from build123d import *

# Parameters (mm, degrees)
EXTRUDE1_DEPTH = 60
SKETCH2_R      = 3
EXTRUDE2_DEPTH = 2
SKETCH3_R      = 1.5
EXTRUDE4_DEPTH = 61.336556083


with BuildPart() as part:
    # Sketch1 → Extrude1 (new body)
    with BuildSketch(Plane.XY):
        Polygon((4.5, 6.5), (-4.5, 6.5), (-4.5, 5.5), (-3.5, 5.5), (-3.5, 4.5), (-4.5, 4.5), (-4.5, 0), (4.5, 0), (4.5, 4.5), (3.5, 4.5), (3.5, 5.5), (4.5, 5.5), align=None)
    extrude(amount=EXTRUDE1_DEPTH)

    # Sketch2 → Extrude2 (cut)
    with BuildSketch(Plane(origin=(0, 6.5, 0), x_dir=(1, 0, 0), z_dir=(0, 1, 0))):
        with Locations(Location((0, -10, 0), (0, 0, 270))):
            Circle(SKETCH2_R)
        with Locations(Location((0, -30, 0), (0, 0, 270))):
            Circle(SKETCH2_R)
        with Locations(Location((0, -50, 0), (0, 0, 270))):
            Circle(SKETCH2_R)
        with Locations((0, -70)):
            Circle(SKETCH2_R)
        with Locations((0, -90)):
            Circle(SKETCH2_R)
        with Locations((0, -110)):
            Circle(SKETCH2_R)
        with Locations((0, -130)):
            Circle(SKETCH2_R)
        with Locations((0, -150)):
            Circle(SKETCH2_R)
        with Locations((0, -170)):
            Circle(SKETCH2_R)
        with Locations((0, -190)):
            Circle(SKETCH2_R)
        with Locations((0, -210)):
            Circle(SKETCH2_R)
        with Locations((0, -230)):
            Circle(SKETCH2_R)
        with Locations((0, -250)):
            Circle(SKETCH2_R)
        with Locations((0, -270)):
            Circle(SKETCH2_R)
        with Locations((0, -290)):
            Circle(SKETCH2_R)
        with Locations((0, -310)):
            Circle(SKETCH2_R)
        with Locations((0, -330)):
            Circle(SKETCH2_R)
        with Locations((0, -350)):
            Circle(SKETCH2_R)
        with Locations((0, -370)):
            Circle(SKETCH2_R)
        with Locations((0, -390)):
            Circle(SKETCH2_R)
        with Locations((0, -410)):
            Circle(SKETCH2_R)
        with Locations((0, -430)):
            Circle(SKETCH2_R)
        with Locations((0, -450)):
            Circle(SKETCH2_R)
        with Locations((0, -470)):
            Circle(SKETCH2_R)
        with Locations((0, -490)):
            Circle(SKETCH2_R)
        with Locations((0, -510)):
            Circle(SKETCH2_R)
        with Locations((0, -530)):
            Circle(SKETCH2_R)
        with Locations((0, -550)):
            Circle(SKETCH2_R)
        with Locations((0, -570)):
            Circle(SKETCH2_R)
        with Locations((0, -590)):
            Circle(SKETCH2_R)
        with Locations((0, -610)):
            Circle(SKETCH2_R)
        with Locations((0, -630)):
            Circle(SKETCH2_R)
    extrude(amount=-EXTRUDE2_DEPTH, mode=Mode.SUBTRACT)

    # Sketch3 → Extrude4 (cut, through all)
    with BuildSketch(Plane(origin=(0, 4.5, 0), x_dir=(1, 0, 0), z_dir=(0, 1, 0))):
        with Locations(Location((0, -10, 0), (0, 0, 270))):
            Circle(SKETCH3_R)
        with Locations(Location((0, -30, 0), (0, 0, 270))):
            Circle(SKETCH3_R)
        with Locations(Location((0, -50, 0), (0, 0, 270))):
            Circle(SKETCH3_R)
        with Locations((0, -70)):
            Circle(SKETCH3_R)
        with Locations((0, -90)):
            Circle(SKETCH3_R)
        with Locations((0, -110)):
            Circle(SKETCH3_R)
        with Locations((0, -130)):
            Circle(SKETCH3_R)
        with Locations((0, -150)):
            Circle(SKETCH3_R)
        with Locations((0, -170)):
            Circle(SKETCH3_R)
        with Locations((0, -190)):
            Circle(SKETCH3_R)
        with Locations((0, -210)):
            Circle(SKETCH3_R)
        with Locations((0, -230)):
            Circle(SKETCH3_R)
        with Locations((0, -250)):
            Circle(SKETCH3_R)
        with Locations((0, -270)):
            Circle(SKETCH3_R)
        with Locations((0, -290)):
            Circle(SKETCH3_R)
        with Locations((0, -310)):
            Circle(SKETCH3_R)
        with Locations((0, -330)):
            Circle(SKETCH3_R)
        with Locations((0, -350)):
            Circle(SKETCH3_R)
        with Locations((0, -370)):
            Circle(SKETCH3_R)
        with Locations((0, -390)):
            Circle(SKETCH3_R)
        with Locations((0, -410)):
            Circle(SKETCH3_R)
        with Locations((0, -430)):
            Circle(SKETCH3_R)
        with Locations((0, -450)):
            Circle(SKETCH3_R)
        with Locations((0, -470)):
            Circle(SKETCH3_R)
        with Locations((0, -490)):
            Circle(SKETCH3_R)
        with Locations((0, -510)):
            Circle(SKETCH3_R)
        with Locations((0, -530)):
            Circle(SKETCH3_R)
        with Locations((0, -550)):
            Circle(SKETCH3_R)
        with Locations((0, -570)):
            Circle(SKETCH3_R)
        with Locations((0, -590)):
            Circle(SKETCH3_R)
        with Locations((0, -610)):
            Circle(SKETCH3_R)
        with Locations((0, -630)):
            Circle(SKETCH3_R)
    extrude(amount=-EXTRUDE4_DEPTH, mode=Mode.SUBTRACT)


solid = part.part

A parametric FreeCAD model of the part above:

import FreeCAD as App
import Part
import Sketcher
from FreeCAD import Vector


def add_polygon(sketch, points):
    """Adds a closed chain of lines whose ends are joined by coincident constraints."""
    first, n = sketch.GeometryCount, len(points)
    for a, b in zip(points, points[1:] + points[:1]):
        sketch.addGeometry(Part.LineSegment(App.Vector(*a, 0), App.Vector(*b, 0)), False)
    for i in range(n):
        sketch.addConstraint(Sketcher.Constraint("Coincident", first + i, 2, first + (i + 1) % n, 1))

doc = App.newDocument("Part")
body = doc.addObject("PartDesign::Body", "Body")

# Sketch on XY plane
sketch1 = body.newObject("Sketcher::SketchObject", "Sketch")
sketch1.AttachmentSupport = (doc.getObject("XY_Plane"), [""])
sketch1.MapMode = "FlatFace"
add_polygon(sketch1, [(4.5, 6.5), (-4.5, 6.5), (-4.5, 5.5), (-3.5, 5.5), (-3.5, 4.5), (-4.5, 4.5), (-4.5, 0), (4.5, 0), (4.5, 4.5), (3.5, 4.5), (3.5, 5.5), (4.5, 5.5)])  # lines 0-11
sketch1.addConstraint(Sketcher.Constraint("Horizontal", 0))
sketch1.addConstraint(Sketcher.Constraint("Vertical", 1))
sketch1.addConstraint(Sketcher.Constraint("Horizontal", 2))
sketch1.addConstraint(Sketcher.Constraint("Vertical", 3))
sketch1.addConstraint(Sketcher.Constraint("Horizontal", 4))
sketch1.addConstraint(Sketcher.Constraint("Vertical", 5))
sketch1.addConstraint(Sketcher.Constraint("Horizontal", 6))
sketch1.addConstraint(Sketcher.Constraint("Vertical", 7))
sketch1.addConstraint(Sketcher.Constraint("Horizontal", 8))
sketch1.addConstraint(Sketcher.Constraint("Vertical", 9))
sketch1.addConstraint(Sketcher.Constraint("Horizontal", 10))
sketch1.addConstraint(Sketcher.Constraint("Vertical", 11))
sketch1.addConstraint(Sketcher.Constraint("Symmetric", 5, 2, 6, 2, -1, 1))
sketch1.addConstraint(Sketcher.Constraint("Symmetric", 3, 2, 8, 2, -2))
sketch1.addConstraint(Sketcher.Constraint("Symmetric", 1, 2, 10, 2, -2))
sketch1.addConstraint(Sketcher.Constraint("Vertical", 1, 2, 4, 2))
sketch1.addConstraint(Sketcher.Constraint("Equal", 10, 1))
sketch1.addConstraint(Sketcher.Constraint("Equal", 1, 3))
sketch1.addConstraint(Sketcher.Constraint("DistanceX", 0, 2, 0, 1, 9.0))
sketch1.addConstraint(Sketcher.Constraint("DistanceX", 2, 1, 2, 2, 1.0))
sketch1.addConstraint(Sketcher.Constraint("DistanceY", 5, 2, 5, 1, 4.5))
pad1 = body.newObject("PartDesign::Pad", "Pad")
pad1.Profile = sketch1
pad1.Length = 60

# Sketch on XZ plane
sketch2 = body.newObject("Sketcher::SketchObject", "Sketch001")
sketch2.AttachmentSupport = (doc.getObject("XZ_Plane"), [""])
sketch2.MapMode = "FlatFace"
sketch2.AttachmentOffset = App.Placement(Vector(0, 0, -6.5), App.Rotation())
sketch2.addGeometry(Part.Circle(Vector(0, 10, 0), Vector(0, 0, 1), 3), False)
sketch2.addGeometry(Part.Circle(Vector(0, 30, 0), Vector(0, 0, 1), 3), False)
sketch2.addGeometry(Part.Circle(Vector(0, 50, 0), Vector(0, 0, 1), 3), False)
sketch2.addGeometry(Part.Circle(Vector(0, 70, 0), Vector(0, 0, 1), 3), False)
sketch2.addGeometry(Part.Circle(Vector(0, 90, 0), Vector(0, 0, 1), 3), False)
sketch2.addGeometry(Part.Circle(Vector(0, 110, 0), Vector(0, 0, 1), 3), False)
sketch2.addGeometry(Part.Circle(Vector(0, 130, 0), Vector(0, 0, 1), 3), False)
sketch2.addGeometry(Part.Circle(Vector(0, 150, 0), Vector(0, 0, 1), 3), False)
sketch2.addGeometry(Part.Circle(Vector(0, 170, 0), Vector(0, 0, 1), 3), False)
sketch2.addGeometry(Part.Circle(Vector(0, 190, 0), Vector(0, 0, 1), 3), False)
sketch2.addGeometry(Part.Circle(Vector(0, 210, 0), Vector(0, 0, 1), 3), False)
sketch2.addGeometry(Part.Circle(Vector(0, 230, 0), Vector(0, 0, 1), 3), False)
sketch2.addGeometry(Part.Circle(Vector(0, 250, 0), Vector(0, 0, 1), 3), False)
sketch2.addGeometry(Part.Circle(Vector(0, 270, 0), Vector(0, 0, 1), 3), False)
sketch2.addGeometry(Part.Circle(Vector(0, 290, 0), Vector(0, 0, 1), 3), False)
sketch2.addGeometry(Part.Circle(Vector(0, 310, 0), Vector(0, 0, 1), 3), False)
sketch2.addGeometry(Part.Circle(Vector(0, 330, 0), Vector(0, 0, 1), 3), False)
sketch2.addGeometry(Part.Circle(Vector(0, 350, 0), Vector(0, 0, 1), 3), False)
sketch2.addGeometry(Part.Circle(Vector(0, 370, 0), Vector(0, 0, 1), 3), False)
sketch2.addGeometry(Part.Circle(Vector(0, 390, 0), Vector(0, 0, 1), 3), False)
sketch2.addGeometry(Part.Circle(Vector(0, 410, 0), Vector(0, 0, 1), 3), False)
sketch2.addGeometry(Part.Circle(Vector(0, 430, 0), Vector(0, 0, 1), 3), False)
sketch2.addGeometry(Part.Circle(Vector(0, 450, 0), Vector(0, 0, 1), 3), False)
sketch2.addGeometry(Part.Circle(Vector(0, 470, 0), Vector(0, 0, 1), 3), False)
sketch2.addGeometry(Part.Circle(Vector(0, 490, 0), Vector(0, 0, 1), 3), False)
sketch2.addGeometry(Part.Circle(Vector(0, 510, 0), Vector(0, 0, 1), 3), False)
sketch2.addGeometry(Part.Circle(Vector(0, 530, 0), Vector(0, 0, 1), 3), False)
sketch2.addGeometry(Part.Circle(Vector(0, 550, 0), Vector(0, 0, 1), 3), False)
sketch2.addGeometry(Part.Circle(Vector(0, 570, 0), Vector(0, 0, 1), 3), False)
sketch2.addGeometry(Part.Circle(Vector(0, 590, 0), Vector(0, 0, 1), 3), False)
sketch2.addGeometry(Part.Circle(Vector(0, 610, 0), Vector(0, 0, 1), 3), False)
sketch2.addGeometry(Part.Circle(Vector(0, 630, 0), Vector(0, 0, 1), 3), False)
sketch2.addConstraint(Sketcher.Constraint("Equal", 0, 1))
sketch2.addConstraint(Sketcher.Constraint("Equal", 1, 2))
sketch2.addConstraint(Sketcher.Constraint("Equal", 2, 3))
sketch2.addConstraint(Sketcher.Constraint("Equal", 3, 4))
sketch2.addConstraint(Sketcher.Constraint("Equal", 4, 5))
sketch2.addConstraint(Sketcher.Constraint("Equal", 5, 6))
sketch2.addConstraint(Sketcher.Constraint("Equal", 6, 7))
sketch2.addConstraint(Sketcher.Constraint("Equal", 7, 8))
sketch2.addConstraint(Sketcher.Constraint("Equal", 8, 9))
sketch2.addConstraint(Sketcher.Constraint("Equal", 9, 10))
sketch2.addConstraint(Sketcher.Constraint("Equal", 10, 11))
sketch2.addConstraint(Sketcher.Constraint("Equal", 11, 12))
sketch2.addConstraint(Sketcher.Constraint("Equal", 12, 13))
sketch2.addConstraint(Sketcher.Constraint("Equal", 13, 14))
sketch2.addConstraint(Sketcher.Constraint("Equal", 14, 15))
sketch2.addConstraint(Sketcher.Constraint("Equal", 15, 16))
sketch2.addConstraint(Sketcher.Constraint("Equal", 16, 17))
sketch2.addConstraint(Sketcher.Constraint("Equal", 17, 18))
sketch2.addConstraint(Sketcher.Constraint("Equal", 18, 19))
sketch2.addConstraint(Sketcher.Constraint("Equal", 19, 20))
sketch2.addConstraint(Sketcher.Constraint("Equal", 20, 21))
sketch2.addConstraint(Sketcher.Constraint("Equal", 21, 22))
sketch2.addConstraint(Sketcher.Constraint("Equal", 22, 23))
sketch2.addConstraint(Sketcher.Constraint("Equal", 23, 24))
sketch2.addConstraint(Sketcher.Constraint("Equal", 24, 25))
sketch2.addConstraint(Sketcher.Constraint("Equal", 25, 26))
sketch2.addConstraint(Sketcher.Constraint("Equal", 26, 27))
sketch2.addConstraint(Sketcher.Constraint("Equal", 27, 28))
sketch2.addConstraint(Sketcher.Constraint("Equal", 28, 29))
sketch2.addConstraint(Sketcher.Constraint("Equal", 29, 30))
sketch2.addConstraint(Sketcher.Constraint("Equal", 30, 31))
sketch2.addConstraint(Sketcher.Constraint("PointOnObject", 0, 3, -2))
sketch2.addConstraint(Sketcher.Constraint("PointOnObject", 1, 3, -2))
sketch2.addConstraint(Sketcher.Constraint("PointOnObject", 2, 3, -2))
sketch2.addConstraint(Sketcher.Constraint("PointOnObject", 3, 3, -2))
sketch2.addConstraint(Sketcher.Constraint("PointOnObject", 4, 3, -2))
sketch2.addConstraint(Sketcher.Constraint("PointOnObject", 5, 3, -2))
sketch2.addConstraint(Sketcher.Constraint("PointOnObject", 6, 3, -2))
sketch2.addConstraint(Sketcher.Constraint("PointOnObject", 7, 3, -2))
sketch2.addConstraint(Sketcher.Constraint("PointOnObject", 8, 3, -2))
sketch2.addConstraint(Sketcher.Constraint("PointOnObject", 9, 3, -2))
sketch2.addConstraint(Sketcher.Constraint("PointOnObject", 10, 3, -2))
sketch2.addConstraint(Sketcher.Constraint("PointOnObject", 11, 3, -2))
sketch2.addConstraint(Sketcher.Constraint("PointOnObject", 12, 3, -2))
sketch2.addConstraint(Sketcher.Constraint("PointOnObject", 13, 3, -2))
sketch2.addConstraint(Sketcher.Constraint("PointOnObject", 14, 3, -2))
sketch2.addConstraint(Sketcher.Constraint("PointOnObject", 15, 3, -2))
sketch2.addConstraint(Sketcher.Constraint("PointOnObject", 16, 3, -2))
sketch2.addConstraint(Sketcher.Constraint("PointOnObject", 17, 3, -2))
sketch2.addConstraint(Sketcher.Constraint("PointOnObject", 18, 3, -2))
sketch2.addConstraint(Sketcher.Constraint("PointOnObject", 19, 3, -2))
sketch2.addConstraint(Sketcher.Constraint("PointOnObject", 20, 3, -2))
sketch2.addConstraint(Sketcher.Constraint("PointOnObject", 21, 3, -2))
sketch2.addConstraint(Sketcher.Constraint("PointOnObject", 22, 3, -2))
sketch2.addConstraint(Sketcher.Constraint("PointOnObject", 23, 3, -2))
sketch2.addConstraint(Sketcher.Constraint("PointOnObject", 24, 3, -2))
sketch2.addConstraint(Sketcher.Constraint("PointOnObject", 25, 3, -2))
sketch2.addConstraint(Sketcher.Constraint("PointOnObject", 26, 3, -2))
sketch2.addConstraint(Sketcher.Constraint("PointOnObject", 27, 3, -2))
sketch2.addConstraint(Sketcher.Constraint("PointOnObject", 28, 3, -2))
sketch2.addConstraint(Sketcher.Constraint("PointOnObject", 29, 3, -2))
sketch2.addConstraint(Sketcher.Constraint("PointOnObject", 30, 3, -2))
sketch2.addConstraint(Sketcher.Constraint("PointOnObject", 31, 3, -2))
sketch2.addConstraint(Sketcher.Constraint("Diameter", 0, 6.0))
sketch2.addConstraint(Sketcher.Constraint("DistanceY", -1, 1, 0, 3, 10.0))
sketch2.addConstraint(Sketcher.Constraint("DistanceY", -1, 1, 1, 3, 30.0))
sketch2.addConstraint(Sketcher.Constraint("DistanceY", -1, 1, 2, 3, 50.0))
sketch2.addConstraint(Sketcher.Constraint("DistanceY", -1, 1, 3, 3, 70.0))
sketch2.addConstraint(Sketcher.Constraint("DistanceY", -1, 1, 4, 3, 90.0))
sketch2.addConstraint(Sketcher.Constraint("DistanceY", -1, 1, 5, 3, 110.0))
sketch2.addConstraint(Sketcher.Constraint("DistanceY", -1, 1, 6, 3, 130.0))
sketch2.addConstraint(Sketcher.Constraint("DistanceY", -1, 1, 7, 3, 150.0))
sketch2.addConstraint(Sketcher.Constraint("DistanceY", -1, 1, 8, 3, 170.0))
sketch2.addConstraint(Sketcher.Constraint("DistanceY", -1, 1, 9, 3, 190.0))
sketch2.addConstraint(Sketcher.Constraint("DistanceY", -1, 1, 10, 3, 210.0))
sketch2.addConstraint(Sketcher.Constraint("DistanceY", -1, 1, 11, 3, 230.0))
sketch2.addConstraint(Sketcher.Constraint("DistanceY", -1, 1, 12, 3, 250.0))
sketch2.addConstraint(Sketcher.Constraint("DistanceY", -1, 1, 13, 3, 270.0))
sketch2.addConstraint(Sketcher.Constraint("DistanceY", -1, 1, 14, 3, 290.0))
sketch2.addConstraint(Sketcher.Constraint("DistanceY", -1, 1, 15, 3, 310.0))
sketch2.addConstraint(Sketcher.Constraint("DistanceY", -1, 1, 16, 3, 330.0))
sketch2.addConstraint(Sketcher.Constraint("DistanceY", -1, 1, 17, 3, 350.0))
sketch2.addConstraint(Sketcher.Constraint("DistanceY", -1, 1, 18, 3, 370.0))
sketch2.addConstraint(Sketcher.Constraint("DistanceY", -1, 1, 19, 3, 390.0))
sketch2.addConstraint(Sketcher.Constraint("DistanceY", -1, 1, 20, 3, 410.0))
sketch2.addConstraint(Sketcher.Constraint("DistanceY", -1, 1, 21, 3, 430.0))
sketch2.addConstraint(Sketcher.Constraint("DistanceY", -1, 1, 22, 3, 450.0))
sketch2.addConstraint(Sketcher.Constraint("DistanceY", -1, 1, 23, 3, 470.0))
sketch2.addConstraint(Sketcher.Constraint("DistanceY", -1, 1, 24, 3, 490.0))
sketch2.addConstraint(Sketcher.Constraint("DistanceY", -1, 1, 25, 3, 510.0))
sketch2.addConstraint(Sketcher.Constraint("DistanceY", -1, 1, 26, 3, 530.0))
sketch2.addConstraint(Sketcher.Constraint("DistanceY", -1, 1, 27, 3, 550.0))
sketch2.addConstraint(Sketcher.Constraint("DistanceY", -1, 1, 28, 3, 570.0))
sketch2.addConstraint(Sketcher.Constraint("DistanceY", -1, 1, 29, 3, 590.0))
sketch2.addConstraint(Sketcher.Constraint("DistanceY", -1, 1, 30, 3, 610.0))
sketch2.addConstraint(Sketcher.Constraint("DistanceY", -1, 1, 31, 3, 630.0))
pocket1 = body.newObject("PartDesign::Pocket", "Pocket")
pocket1.Profile = sketch2
pocket1.Length = 2
pocket1.Reversed = True

# Sketch on XZ plane
sketch3 = body.newObject("Sketcher::SketchObject", "Sketch002")
sketch3.AttachmentSupport = (doc.getObject("XZ_Plane"), [""])
sketch3.MapMode = "FlatFace"
sketch3.AttachmentOffset = App.Placement(Vector(0, 0, -4.5), App.Rotation())
sketch3.addGeometry(Part.Circle(Vector(0, 10, 0), Vector(0, 0, 1), 1.5), False)
sketch3.addGeometry(Part.Circle(Vector(0, 30, 0), Vector(0, 0, 1), 1.5), False)
sketch3.addGeometry(Part.Circle(Vector(0, 50, 0), Vector(0, 0, 1), 1.5), False)
sketch3.addGeometry(Part.Circle(Vector(0, 70, 0), Vector(0, 0, 1), 1.5), False)
sketch3.addGeometry(Part.Circle(Vector(0, 90, 0), Vector(0, 0, 1), 1.5), False)
sketch3.addGeometry(Part.Circle(Vector(0, 110, 0), Vector(0, 0, 1), 1.5), False)
sketch3.addGeometry(Part.Circle(Vector(0, 130, 0), Vector(0, 0, 1), 1.5), False)
sketch3.addGeometry(Part.Circle(Vector(0, 150, 0), Vector(0, 0, 1), 1.5), False)
sketch3.addGeometry(Part.Circle(Vector(0, 170, 0), Vector(0, 0, 1), 1.5), False)
sketch3.addGeometry(Part.Circle(Vector(0, 190, 0), Vector(0, 0, 1), 1.5), False)
sketch3.addGeometry(Part.Circle(Vector(0, 210, 0), Vector(0, 0, 1), 1.5), False)
sketch3.addGeometry(Part.Circle(Vector(0, 230, 0), Vector(0, 0, 1), 1.5), False)
sketch3.addGeometry(Part.Circle(Vector(0, 250, 0), Vector(0, 0, 1), 1.5), False)
sketch3.addGeometry(Part.Circle(Vector(0, 270, 0), Vector(0, 0, 1), 1.5), False)
sketch3.addGeometry(Part.Circle(Vector(0, 290, 0), Vector(0, 0, 1), 1.5), False)
sketch3.addGeometry(Part.Circle(Vector(0, 310, 0), Vector(0, 0, 1), 1.5), False)
sketch3.addGeometry(Part.Circle(Vector(0, 330, 0), Vector(0, 0, 1), 1.5), False)
sketch3.addGeometry(Part.Circle(Vector(0, 350, 0), Vector(0, 0, 1), 1.5), False)
sketch3.addGeometry(Part.Circle(Vector(0, 370, 0), Vector(0, 0, 1), 1.5), False)
sketch3.addGeometry(Part.Circle(Vector(0, 390, 0), Vector(0, 0, 1), 1.5), False)
sketch3.addGeometry(Part.Circle(Vector(0, 410, 0), Vector(0, 0, 1), 1.5), False)
sketch3.addGeometry(Part.Circle(Vector(0, 430, 0), Vector(0, 0, 1), 1.5), False)
sketch3.addGeometry(Part.Circle(Vector(0, 450, 0), Vector(0, 0, 1), 1.5), False)
sketch3.addGeometry(Part.Circle(Vector(0, 470, 0), Vector(0, 0, 1), 1.5), False)
sketch3.addGeometry(Part.Circle(Vector(0, 490, 0), Vector(0, 0, 1), 1.5), False)
sketch3.addGeometry(Part.Circle(Vector(0, 510, 0), Vector(0, 0, 1), 1.5), False)
sketch3.addGeometry(Part.Circle(Vector(0, 530, 0), Vector(0, 0, 1), 1.5), False)
sketch3.addGeometry(Part.Circle(Vector(0, 550, 0), Vector(0, 0, 1), 1.5), False)
sketch3.addGeometry(Part.Circle(Vector(0, 570, 0), Vector(0, 0, 1), 1.5), False)
sketch3.addGeometry(Part.Circle(Vector(0, 590, 0), Vector(0, 0, 1), 1.5), False)
sketch3.addGeometry(Part.Circle(Vector(0, 610, 0), Vector(0, 0, 1), 1.5), False)
sketch3.addGeometry(Part.Circle(Vector(0, 630, 0), Vector(0, 0, 1), 1.5), False)
sketch3.addConstraint(Sketcher.Constraint("Equal", 0, 1))
sketch3.addConstraint(Sketcher.Constraint("Equal", 1, 2))
sketch3.addConstraint(Sketcher.Constraint("Equal", 2, 3))
sketch3.addConstraint(Sketcher.Constraint("Equal", 3, 4))
sketch3.addConstraint(Sketcher.Constraint("Equal", 4, 5))
sketch3.addConstraint(Sketcher.Constraint("Equal", 5, 6))
sketch3.addConstraint(Sketcher.Constraint("Equal", 6, 7))
sketch3.addConstraint(Sketcher.Constraint("Equal", 7, 8))
sketch3.addConstraint(Sketcher.Constraint("Equal", 8, 9))
sketch3.addConstraint(Sketcher.Constraint("Equal", 9, 10))
sketch3.addConstraint(Sketcher.Constraint("Equal", 10, 11))
sketch3.addConstraint(Sketcher.Constraint("Equal", 11, 12))
sketch3.addConstraint(Sketcher.Constraint("Equal", 12, 13))
sketch3.addConstraint(Sketcher.Constraint("Equal", 13, 14))
sketch3.addConstraint(Sketcher.Constraint("Equal", 14, 15))
sketch3.addConstraint(Sketcher.Constraint("Equal", 15, 16))
sketch3.addConstraint(Sketcher.Constraint("Equal", 16, 17))
sketch3.addConstraint(Sketcher.Constraint("Equal", 17, 18))
sketch3.addConstraint(Sketcher.Constraint("Equal", 18, 19))
sketch3.addConstraint(Sketcher.Constraint("Equal", 19, 20))
sketch3.addConstraint(Sketcher.Constraint("Equal", 20, 21))
sketch3.addConstraint(Sketcher.Constraint("Equal", 21, 22))
sketch3.addConstraint(Sketcher.Constraint("Equal", 22, 23))
sketch3.addConstraint(Sketcher.Constraint("Equal", 23, 24))
sketch3.addConstraint(Sketcher.Constraint("Equal", 24, 25))
sketch3.addConstraint(Sketcher.Constraint("Equal", 25, 26))
sketch3.addConstraint(Sketcher.Constraint("Equal", 26, 27))
sketch3.addConstraint(Sketcher.Constraint("Equal", 27, 28))
sketch3.addConstraint(Sketcher.Constraint("Equal", 28, 29))
sketch3.addConstraint(Sketcher.Constraint("Equal", 29, 30))
sketch3.addConstraint(Sketcher.Constraint("Equal", 30, 31))
sketch3.addConstraint(Sketcher.Constraint("PointOnObject", 0, 3, -2))
sketch3.addConstraint(Sketcher.Constraint("PointOnObject", 1, 3, -2))
sketch3.addConstraint(Sketcher.Constraint("PointOnObject", 2, 3, -2))
sketch3.addConstraint(Sketcher.Constraint("PointOnObject", 3, 3, -2))
sketch3.addConstraint(Sketcher.Constraint("PointOnObject", 4, 3, -2))
sketch3.addConstraint(Sketcher.Constraint("PointOnObject", 5, 3, -2))
sketch3.addConstraint(Sketcher.Constraint("PointOnObject", 6, 3, -2))
sketch3.addConstraint(Sketcher.Constraint("PointOnObject", 7, 3, -2))
sketch3.addConstraint(Sketcher.Constraint("PointOnObject", 8, 3, -2))
sketch3.addConstraint(Sketcher.Constraint("PointOnObject", 9, 3, -2))
sketch3.addConstraint(Sketcher.Constraint("PointOnObject", 10, 3, -2))
sketch3.addConstraint(Sketcher.Constraint("PointOnObject", 11, 3, -2))
sketch3.addConstraint(Sketcher.Constraint("PointOnObject", 12, 3, -2))
sketch3.addConstraint(Sketcher.Constraint("PointOnObject", 13, 3, -2))
sketch3.addConstraint(Sketcher.Constraint("PointOnObject", 14, 3, -2))
sketch3.addConstraint(Sketcher.Constraint("PointOnObject", 15, 3, -2))
sketch3.addConstraint(Sketcher.Constraint("PointOnObject", 16, 3, -2))
sketch3.addConstraint(Sketcher.Constraint("PointOnObject", 17, 3, -2))
sketch3.addConstraint(Sketcher.Constraint("PointOnObject", 18, 3, -2))
sketch3.addConstraint(Sketcher.Constraint("PointOnObject", 19, 3, -2))
sketch3.addConstraint(Sketcher.Constraint("PointOnObject", 20, 3, -2))
sketch3.addConstraint(Sketcher.Constraint("PointOnObject", 21, 3, -2))
sketch3.addConstraint(Sketcher.Constraint("PointOnObject", 22, 3, -2))
sketch3.addConstraint(Sketcher.Constraint("PointOnObject", 23, 3, -2))
sketch3.addConstraint(Sketcher.Constraint("PointOnObject", 24, 3, -2))
sketch3.addConstraint(Sketcher.Constraint("PointOnObject", 25, 3, -2))
sketch3.addConstraint(Sketcher.Constraint("PointOnObject", 26, 3, -2))
sketch3.addConstraint(Sketcher.Constraint("PointOnObject", 27, 3, -2))
sketch3.addConstraint(Sketcher.Constraint("PointOnObject", 28, 3, -2))
sketch3.addConstraint(Sketcher.Constraint("PointOnObject", 29, 3, -2))
sketch3.addConstraint(Sketcher.Constraint("PointOnObject", 30, 3, -2))
sketch3.addConstraint(Sketcher.Constraint("PointOnObject", 31, 3, -2))
sketch3.addConstraint(Sketcher.Constraint("Diameter", 0, 3.0))
sketch3.addConstraint(Sketcher.Constraint("DistanceY", -1, 1, 0, 3, 10.0))
sketch3.addConstraint(Sketcher.Constraint("DistanceY", -1, 1, 1, 3, 30.0))
sketch3.addConstraint(Sketcher.Constraint("DistanceY", -1, 1, 2, 3, 50.0))
sketch3.addConstraint(Sketcher.Constraint("DistanceY", -1, 1, 3, 3, 70.0))
sketch3.addConstraint(Sketcher.Constraint("DistanceY", -1, 1, 4, 3, 90.0))
sketch3.addConstraint(Sketcher.Constraint("DistanceY", -1, 1, 5, 3, 110.0))
sketch3.addConstraint(Sketcher.Constraint("DistanceY", -1, 1, 6, 3, 130.0))
sketch3.addConstraint(Sketcher.Constraint("DistanceY", -1, 1, 7, 3, 150.0))
sketch3.addConstraint(Sketcher.Constraint("DistanceY", -1, 1, 8, 3, 170.0))
sketch3.addConstraint(Sketcher.Constraint("DistanceY", -1, 1, 9, 3, 190.0))
sketch3.addConstraint(Sketcher.Constraint("DistanceY", -1, 1, 10, 3, 210.0))
sketch3.addConstraint(Sketcher.Constraint("DistanceY", -1, 1, 11, 3, 230.0))
sketch3.addConstraint(Sketcher.Constraint("DistanceY", -1, 1, 12, 3, 250.0))
sketch3.addConstraint(Sketcher.Constraint("DistanceY", -1, 1, 13, 3, 270.0))
sketch3.addConstraint(Sketcher.Constraint("DistanceY", -1, 1, 14, 3, 290.0))
sketch3.addConstraint(Sketcher.Constraint("DistanceY", -1, 1, 15, 3, 310.0))
sketch3.addConstraint(Sketcher.Constraint("DistanceY", -1, 1, 16, 3, 330.0))
sketch3.addConstraint(Sketcher.Constraint("DistanceY", -1, 1, 17, 3, 350.0))
sketch3.addConstraint(Sketcher.Constraint("DistanceY", -1, 1, 18, 3, 370.0))
sketch3.addConstraint(Sketcher.Constraint("DistanceY", -1, 1, 19, 3, 390.0))
sketch3.addConstraint(Sketcher.Constraint("DistanceY", -1, 1, 20, 3, 410.0))
sketch3.addConstraint(Sketcher.Constraint("DistanceY", -1, 1, 21, 3, 430.0))
sketch3.addConstraint(Sketcher.Constraint("DistanceY", -1, 1, 22, 3, 450.0))
sketch3.addConstraint(Sketcher.Constraint("DistanceY", -1, 1, 23, 3, 470.0))
sketch3.addConstraint(Sketcher.Constraint("DistanceY", -1, 1, 24, 3, 490.0))
sketch3.addConstraint(Sketcher.Constraint("DistanceY", -1, 1, 25, 3, 510.0))
sketch3.addConstraint(Sketcher.Constraint("DistanceY", -1, 1, 26, 3, 530.0))
sketch3.addConstraint(Sketcher.Constraint("DistanceY", -1, 1, 27, 3, 550.0))
sketch3.addConstraint(Sketcher.Constraint("DistanceY", -1, 1, 28, 3, 570.0))
sketch3.addConstraint(Sketcher.Constraint("DistanceY", -1, 1, 29, 3, 590.0))
sketch3.addConstraint(Sketcher.Constraint("DistanceY", -1, 1, 30, 3, 610.0))
sketch3.addConstraint(Sketcher.Constraint("DistanceY", -1, 1, 31, 3, 630.0))
pocket2 = body.newObject("PartDesign::Pocket", "Pocket001")
pocket2.Profile = sketch3
pocket2.Type = "ThroughAll"
pocket2.Reversed = True

doc.recompute()
